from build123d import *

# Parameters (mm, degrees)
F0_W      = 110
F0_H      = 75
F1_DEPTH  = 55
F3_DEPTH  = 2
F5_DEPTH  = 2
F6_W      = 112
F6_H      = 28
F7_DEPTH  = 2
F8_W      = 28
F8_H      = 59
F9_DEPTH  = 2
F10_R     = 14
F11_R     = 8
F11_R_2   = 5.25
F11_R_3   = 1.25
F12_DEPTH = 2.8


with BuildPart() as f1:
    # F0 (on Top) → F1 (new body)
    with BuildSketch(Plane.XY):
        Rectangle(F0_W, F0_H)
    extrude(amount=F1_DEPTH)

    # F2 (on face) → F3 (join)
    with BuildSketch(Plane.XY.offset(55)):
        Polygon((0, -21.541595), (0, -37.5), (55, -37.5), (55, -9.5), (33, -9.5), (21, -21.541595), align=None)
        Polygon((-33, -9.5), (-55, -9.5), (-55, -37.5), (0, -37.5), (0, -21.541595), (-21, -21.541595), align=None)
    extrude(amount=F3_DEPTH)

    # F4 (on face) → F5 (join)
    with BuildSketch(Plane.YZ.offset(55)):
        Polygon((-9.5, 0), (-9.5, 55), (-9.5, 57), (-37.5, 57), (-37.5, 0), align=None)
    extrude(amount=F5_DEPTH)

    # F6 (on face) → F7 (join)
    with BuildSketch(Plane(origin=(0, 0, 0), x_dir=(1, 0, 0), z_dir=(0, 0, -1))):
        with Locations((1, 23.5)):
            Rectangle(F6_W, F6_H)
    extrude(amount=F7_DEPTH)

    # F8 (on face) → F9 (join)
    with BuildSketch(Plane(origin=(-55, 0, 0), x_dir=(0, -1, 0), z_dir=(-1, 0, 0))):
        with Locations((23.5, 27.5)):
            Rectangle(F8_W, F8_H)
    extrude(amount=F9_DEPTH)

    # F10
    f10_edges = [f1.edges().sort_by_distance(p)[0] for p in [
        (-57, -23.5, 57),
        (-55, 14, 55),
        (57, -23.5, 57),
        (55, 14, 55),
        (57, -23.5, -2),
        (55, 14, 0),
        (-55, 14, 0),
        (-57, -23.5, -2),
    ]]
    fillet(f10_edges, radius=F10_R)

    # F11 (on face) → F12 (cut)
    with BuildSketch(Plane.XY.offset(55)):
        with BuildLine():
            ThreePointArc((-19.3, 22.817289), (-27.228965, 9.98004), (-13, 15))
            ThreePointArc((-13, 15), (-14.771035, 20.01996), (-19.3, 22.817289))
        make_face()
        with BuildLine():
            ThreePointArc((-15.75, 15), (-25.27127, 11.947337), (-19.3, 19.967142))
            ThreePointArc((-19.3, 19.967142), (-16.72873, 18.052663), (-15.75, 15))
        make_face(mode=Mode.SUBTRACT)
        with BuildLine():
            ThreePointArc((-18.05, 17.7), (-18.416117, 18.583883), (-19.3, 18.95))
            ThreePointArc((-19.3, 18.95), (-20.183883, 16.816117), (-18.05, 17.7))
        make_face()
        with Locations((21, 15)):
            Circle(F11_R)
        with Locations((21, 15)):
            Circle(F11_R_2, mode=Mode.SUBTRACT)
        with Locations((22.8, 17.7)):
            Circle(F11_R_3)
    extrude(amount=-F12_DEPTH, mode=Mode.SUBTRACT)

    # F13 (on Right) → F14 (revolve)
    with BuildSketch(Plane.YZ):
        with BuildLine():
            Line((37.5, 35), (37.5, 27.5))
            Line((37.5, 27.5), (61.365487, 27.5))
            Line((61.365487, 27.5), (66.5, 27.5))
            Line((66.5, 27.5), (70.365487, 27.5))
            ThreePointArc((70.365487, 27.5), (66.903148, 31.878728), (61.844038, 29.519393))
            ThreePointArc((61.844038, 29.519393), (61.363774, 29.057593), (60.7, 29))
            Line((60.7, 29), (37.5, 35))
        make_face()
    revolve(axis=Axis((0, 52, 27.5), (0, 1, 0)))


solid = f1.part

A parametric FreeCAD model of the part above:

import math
import FreeCAD as App
import Part
import Sketcher


def edges_at(feature, points):
    """Names of the edges that pass closest to the given points."""
    edges = feature.Shape.Edges
    near = lambda p: min(range(len(edges)), key=lambda i: edges[i].distToShape(Part.Vertex(*p))[0])
    return sorted({f"Edge{near(p) + 1}" for p in points})

doc = App.newDocument("Part")
body = doc.addObject("PartDesign::Body", "Body")

# Sketch on XY plane
sketch1 = doc.addObject("Sketcher::SketchObject", "Sketch")
body.addObject(sketch1)
sketch1.AttachmentSupport = (doc.XY_Plane, [""])
sketch1.MapMode = "FlatFace"
sketch1.addGeometry([
    Part.LineSegment(App.Vector(-55, 37.5, 0), App.Vector(-55, -37.5, 0)),
    Part.LineSegment(App.Vector(-55, -37.5, 0), App.Vector(55, -37.5, 0)),
    Part.LineSegment(App.Vector(55, -37.5, 0), App.Vector(55, 37.5, 0)),
    Part.LineSegment(App.Vector(55, 37.5, 0), App.Vector(-55, 37.5, 0)),
], False)
sketch1.addConstraint([
    Sketcher.Constraint("Coincident", 0, 2, 1, 1),
    Sketcher.Constraint("Coincident", 1, 2, 2, 1),
    Sketcher.Constraint("Coincident", 2, 2, 3, 1),
    Sketcher.Constraint("Coincident", 3, 2, 0, 1),
    Sketcher.Constraint("Vertical", 0),
    Sketcher.Constraint("Horizontal", 1),
    Sketcher.Constraint("Vertical", 2),
    Sketcher.Constraint("Horizontal", 3),
    Sketcher.Constraint("Symmetric", 0, 2, 2, 2, -1, 1),
    Sketcher.Constraint("DistanceX", 1, 1, 1, 2, 110.0),
    Sketcher.Constraint("DistanceY", 0, 2, 0, 1, 75.0),
])
pad1 = doc.addObject("PartDesign::Pad", "Pad")
body.addObject(pad1)
pad1.Profile = sketch1
pad1.Length = 55

# Sketch on XY plane
sketch2 = doc.addObject("Sketcher::SketchObject", "Sketch001")
body.addObject(sketch2)
sketch2.AttachmentSupport = (doc.XY_Plane, [""])
sketch2.MapMode = "FlatFace"
sketch2.AttachmentOffset = App.Placement(App.Vector(0, 0, 55), App.Rotation())
sketch2.addGeometry([
    Part.LineSegment(App.Vector(55, -37.5, 0), App.Vector(55, -9.5, 0)),  # 0
    Part.LineSegment(App.Vector(55, -9.5, 0), App.Vector(33, -9.5, 0)),  # 1
    Part.LineSegment(App.Vector(33, -9.5, 0), App.Vector(21, -21.541595, 0)),  # 2
    Part.LineSegment(App.Vector(21, -21.541595, 0), App.Vector(-21, -21.541595, 0)),  # 3
    Part.LineSegment(App.Vector(-21, -21.541595, 0), App.Vector(-33, -9.5, 0)),  # 4
    Part.LineSegment(App.Vector(-33, -9.5, 0), App.Vector(-55, -9.5, 0)),  # 5
    Part.LineSegment(App.Vector(-55, -9.5, 0), App.Vector(-55, -37.5, 0)),  # 6
    Part.LineSegment(App.Vector(-55, -37.5, 0), App.Vector(55, -37.5, 0)),  # 7
], False)
sketch2.addConstraint([
    Sketcher.Constraint("Coincident", 0, 2, 1, 1),
    Sketcher.Constraint("Coincident", 1, 2, 2, 1),
    Sketcher.Constraint("Coincident", 2, 2, 3, 1),
    Sketcher.Constraint("Coincident", 3, 2, 4, 1),
    Sketcher.Constraint("Coincident", 4, 2, 5, 1),
    Sketcher.Constraint("Coincident", 5, 2, 6, 1),
    Sketcher.Constraint("Coincident", 6, 2, 7, 1),
    Sketcher.Constraint("Coincident", 7, 2, 0, 1),
    Sketcher.Constraint("Vertical", 0),
    Sketcher.Constraint("Horizontal", 1),
    Sketcher.Constraint("Horizontal", 3),
    Sketcher.Constraint("Horizontal", 5),
    Sketcher.Constraint("Vertical", 6),
    Sketcher.Constraint("Horizontal", 7),
    Sketcher.Constraint("Symmetric", 1, 2, 4, 2, -2),
    Sketcher.Constraint("Equal", 1, 5),
    Sketcher.Constraint("Equal", 2, 4),
    Sketcher.Constraint("DistanceX", 1, 2, 1, 1, 22.0),
    Sketcher.Constraint("DistanceX", 3, 2, 3, 1, 42.0),
    Sketcher.Constraint("DistanceX", 7, 1, 7, 2, 110.0),
    Sketcher.Constraint("DistanceY", 0, 1, 0, 2, 28.0),
    Sketcher.Constraint("Distance", 2, 17.0),
    Sketcher.Constraint("DistanceY", 0, 2, -1, 1, 9.5),
])
pad2 = doc.addObject("PartDesign::Pad", "Pad001")
body.addObject(pad2)
pad2.Profile = sketch2
pad2.Length = 2

# Sketch on YZ plane
sketch3 = doc.addObject("Sketcher::SketchObject", "Sketch002")
body.addObject(sketch3)
sketch3.AttachmentSupport = (doc.YZ_Plane, [""])
sketch3.MapMode = "FlatFace"
sketch3.AttachmentOffset = App.Placement(App.Vector(0, 0, 55), App.Rotation())
sketch3.addGeometry([
    Part.LineSegment(App.Vector(-9.5, 0, 0), App.Vector(-9.5, 57, 0)),
    Part.LineSegment(App.Vector(-9.5, 57, 0), App.Vector(-37.5, 57, 0)),
    Part.LineSegment(App.Vector(-37.5, 57, 0), App.Vector(-37.5, 0, 0)),
    Part.LineSegment(App.Vector(-37.5, 0, 0), App.Vector(-9.5, 0, 0)),
], False)
sketch3.addConstraint([
    Sketcher.Constraint("Coincident", 0, 2, 1, 1),
    Sketcher.Constraint("Coincident", 1, 2, 2, 1),
    Sketcher.Constraint("Coincident", 2, 2, 3, 1),
    Sketcher.Constraint("Coincident", 3, 2, 0, 1),
    Sketcher.Constraint("Vertical", 0),
    Sketcher.Constraint("Horizontal", 1),
    Sketcher.Constraint("Vertical", 2),
    Sketcher.Constraint("Horizontal", 3),
    Sketcher.Constraint("PointOnObject", 2, 2, -1),
    Sketcher.Constraint("DistanceX", 1, 2, 1, 1, 28.0),
    Sketcher.Constraint("DistanceY", 0, 1, 0, 2, 57.0),
    Sketcher.Constraint("DistanceX", 0, 2, -1, 1, 9.5),
])
pad3 = doc.addObject("PartDesign::Pad", "Pad002")
body.addObject(pad3)
pad3.Profile = sketch3
pad3.Length = 2

# Sketch on XY plane
sketch4 = doc.addObject("Sketcher::SketchObject", "Sketch003")
body.addObject(sketch4)
sketch4.AttachmentSupport = (doc.XY_Plane, [""])
sketch4.MapMode = "FlatFace"
sketch4.addGeometry([
    Part.LineSegment(App.Vector(-55, -37.5, 0), App.Vector(-55, -9.5, 0)),
    Part.LineSegment(App.Vector(-55, -9.5, 0), App.Vector(57, -9.5, 0)),
    Part.LineSegment(App.Vector(57, -9.5, 0), App.Vector(57, -37.5, 0)),
    Part.LineSegment(App.Vector(57, -37.5, 0), App.Vector(-55, -37.5, 0)),
], False)
sketch4.addConstraint([
    Sketcher.Constraint("Coincident", 0, 2, 1, 1),
    Sketcher.Constraint("Coincident", 1, 2, 2, 1),
    Sketcher.Constraint("Coincident", 2, 2, 3, 1),
    Sketcher.Constraint("Coincident", 3, 2, 0, 1),
    Sketcher.Constraint("Vertical", 0),
    Sketcher.Constraint("Horizontal", 1),
    Sketcher.Constraint("Vertical", 2),
    Sketcher.Constraint("Horizontal", 3),
    Sketcher.Constraint("DistanceX", 1, 1, 1, 2, 112.0),
    Sketcher.Constraint("DistanceY", 0, 1, 0, 2, 28.0),
    Sketcher.Constraint("DistanceX", 0, 2, -1, 1, 55.0),
    Sketcher.Constraint("DistanceY", 0, 2, -1, 1, 9.5),
])
pad4 = doc.addObject("PartDesign::Pad", "Pad003")
body.addObject(pad4)
pad4.Profile = sketch4
pad4.Length = 2
pad4.Reversed = True

# Sketch on YZ plane
sketch5 = doc.addObject("Sketcher::SketchObject", "Sketch004")
body.addObject(sketch5)
sketch5.AttachmentSupport = (doc.YZ_Plane, [""])
sketch5.MapMode = "FlatFace"
sketch5.AttachmentOffset = App.Placement(App.Vector(0, 0, -55), App.Rotation())
sketch5.addGeometry([
    Part.LineSegment(App.Vector(-9.5, 57, 0), App.Vector(-9.5, -2, 0)),
    Part.LineSegment(App.Vector(-9.5, -2, 0), App.Vector(-37.5, -2, 0)),
    Part.LineSegment(App.Vector(-37.5, -2, 0), App.Vector(-37.5, 57, 0)),
    Part.LineSegment(App.Vector(-37.5, 57, 0), App.Vector(-9.5, 57, 0)),
], False)
sketch5.addConstraint([
    Sketcher.Constraint("Coincident", 0, 2, 1, 1),
    Sketcher.Constraint("Coincident", 1, 2, 2, 1),
    Sketcher.Constraint("Coincident", 2, 2, 3, 1),
    Sketcher.Constraint("Coincident", 3, 2, 0, 1),
    Sketcher.Constraint("Vertical", 0),
    Sketcher.Constraint("Horizontal", 1),
    Sketcher.Constraint("Vertical", 2),
    Sketcher.Constraint("Horizontal", 3),
    Sketcher.Constraint("DistanceX", 1, 2, 1, 1, 28.0),
    Sketcher.Constraint("DistanceY", 0, 2, 0, 1, 59.0),
    Sketcher.Constraint("DistanceY", 0, 2, -1, 1, 2.0),
    Sketcher.Constraint("DistanceX", 0, 2, -1, 1, 9.5),
])
pad5 = doc.addObject("PartDesign::Pad", "Pad004")
body.addObject(pad5)
pad5.Profile = sketch5
pad5.Length = 2
pad5.Reversed = True
doc.recompute()

fillet = doc.addObject("PartDesign::Fillet", "Fillet")
body.addObject(fillet)
fillet.Base = (pad5, edges_at(pad5, [
    (-57, -23.5, 57),
    (-55, 14, 55),
    (57, -23.5, 57),
    (55, 14, 55),
    (57, -23.5, -2),
    (55, 14, 0),
    (-55, 14, 0),
    (-57, -23.5, -2),
]))
fillet.Radius = 14

# Sketch on XY plane
sketch6 = doc.addObject("Sketcher::SketchObject", "Sketch005")
body.addObject(sketch6)
sketch6.AttachmentSupport = (doc.XY_Plane, [""])
sketch6.MapMode = "FlatFace"
sketch6.AttachmentOffset = App.Placement(App.Vector(0, 0, 55), App.Rotation())
sketch6.addGeometry([
    Part.ArcOfCircle(Part.Circle(App.Vector(-21, 15, 0), App.Vector(0, 0, 1), 8), math.radians(77.7311), math.radians(359.999998)),  # 0
    Part.ArcOfCircle(Part.Circle(App.Vector(-21, 15, 0), App.Vector(0, 0, 1), 8), math.radians(-0.000002), math.radians(77.731099)),  # 1
    Part.ArcOfCircle(Part.Circle(App.Vector(-21, 15, 0), App.Vector(0, 0, 1), 5.25), math.radians(0.000004), math.radians(71.106531)),  # 2
    Part.ArcOfCircle(Part.Circle(App.Vector(-21, 15, 0), App.Vector(0, 0, 1), 5.25), math.radians(71.106535), math.radians(360)),  # 3
    Part.ArcOfCircle(Part.Circle(App.Vector(-19.300002, 17.699998, 0), App.Vector(0, 0, 1), 1.250002), math.radians(0.000075), math.radians(89.999925)),  # 4
    Part.ArcOfCircle(Part.Circle(App.Vector(-19.3, 17.7, 0), App.Vector(0, 0, 1), 1.25), math.radians(90.000013), math.radians(359.999987)),  # 5
    Part.Circle(App.Vector(21, 15, 0), App.Vector(0, 0, 1), 8),  # 6
    Part.Circle(App.Vector(21, 15, 0), App.Vector(0, 0, 1), 5.25),  # 7
    Part.Circle(App.Vector(22.8, 17.7, 0), App.Vector(0, 0, 1), 1.25),  # 8
], False)
sketch6.addConstraint([
    Sketcher.Constraint("Tangent", 0, 1, 1, 2),
    Sketcher.Constraint("Coincident", 1, 1, 0, 2),
    Sketcher.Constraint("Tangent", 2, 1, 3, 2),
    Sketcher.Constraint("Coincident", 3, 1, 2, 2),
    Sketcher.Constraint("Tangent", 4, 1, 5, 2),
    Sketcher.Constraint("Coincident", 5, 1, 4, 2),
    Sketcher.Constraint("Coincident", 2, 3, 0, 3),
    Sketcher.Constraint("Coincident", 7, 3, 6, 3),
    Sketcher.Constraint("Equal", 1, 6),
    Sketcher.Constraint("Equal", 3, 7),
    Sketcher.Constraint("Equal", 5, 8),
    Sketcher.Constraint("Symmetric", 0, 3, 6, 3, -2),
    Sketcher.Constraint("Horizontal", 5, 3, 8, 3),
    Sketcher.Constraint("Horizontal", 7, 3, 1, 1),
    Sketcher.Constraint("Horizontal", 1, 1, 2, 1),
    Sketcher.Constraint("Horizontal", 8, 3, 4, 1),
    Sketcher.Constraint("Vertical", 5, 3, 0, 1),
    Sketcher.Constraint("Vertical", 0, 1, 3, 1),
    Sketcher.Constraint("Vertical", 3, 1, 5, 1),
    Sketcher.Constraint("Diameter", 6, 16.0),
    Sketcher.Constraint("Diameter", 7, 10.5),
    Sketcher.Constraint("Diameter", 8, 2.5),
    Sketcher.Constraint("DistanceX", 0, 3, -1, 1, 21.0),
    Sketcher.Constraint("DistanceY", -1, 1, 0, 3, 15.0),
    Sketcher.Constraint("DistanceX", 4, 3, -1, 1, 19.300002),
    Sketcher.Constraint("DistanceY", -1, 1, 4, 3, 17.699998),
    Sketcher.Constraint("DistanceX", -1, 1, 8, 3, 22.8),
])
pocket1 = doc.addObject("PartDesign::Pocket", "Pocket")
body.addObject(pocket1)
pocket1.Profile = sketch6
pocket1.Length = 2.8

# Sketch on YZ plane
sketch7 = doc.addObject("Sketcher::SketchObject", "Sketch006")
body.addObject(sketch7)
sketch7.AttachmentSupport = (doc.YZ_Plane, [""])
sketch7.MapMode = "FlatFace"
sketch7.addGeometry([
    Part.LineSegment(App.Vector(37.5, 35, 0), App.Vector(37.5, 27.5, 0)),  # 0
    Part.LineSegment(App.Vector(37.5, 27.5, 0), App.Vector(70.365487, 27.5, 0)),  # 1
    Part.ArcOfCircle(Part.Circle(App.Vector(65.865487, 27.5, 0), App.Vector(0, 0, 1), 4.5), math.radians(0.000001), math.radians(153.336229)),  # 2
    Part.ArcOfCircle(Part.Circle(App.Vector(60.950384, 29.968145, 0), App.Vector(0, 0, 1), 0.999998), math.radians(-104.500231), math.radians(-26.663693)),  # 3
    Part.LineSegment(App.Vector(60.7, 29, 0), App.Vector(37.5, 35, 0)),  # 4
], False)
sketch7.addGeometry(Part.LineSegment(App.Vector(37.5, 27.5, 0), App.Vector(70.365487, 27.5, 0)), True)  # axis
sketch7.addConstraint([
    Sketcher.Constraint("Coincident", 0, 2, 1, 1),
    Sketcher.Constraint("Coincident", 1, 2, 2, 1),
    Sketcher.Constraint("Tangent", 2, 2, 3, 2),
    Sketcher.Constraint("Tangent", 3, 1, 4, 1),
    Sketcher.Constraint("Coincident", 4, 2, 0, 1),
    Sketcher.Constraint("Vertical", 0),
    Sketcher.Constraint("Horizontal", 1),
    Sketcher.Constraint("Horizontal", 5),
    Sketcher.Constraint("Coincident", 5, 1, 0, 2),
    Sketcher.Constraint("Horizontal", 2, 3, 0, 2),
    Sketcher.Constraint("Equal", 1, 5),
    Sketcher.Constraint("Radius", 3, 0.999998),
    Sketcher.Constraint("Radius", 2, 4.5),
    Sketcher.Constraint("DistanceY", 0, 2, 0, 1, 7.5),
    Sketcher.Constraint("DistanceY", -1, 1, 3, 1, 29.0),
    Sketcher.Constraint("DistanceY", -1, 1, 4, 2, 35.0),
    Sketcher.Constraint("DistanceX", -1, 1, 0, 2, 37.5),
    Sketcher.Constraint("DistanceX", -1, 1, 3, 1, 60.7),
])
revolution = doc.addObject("PartDesign::Revolution", "Revolution")
body.addObject(revolution)
revolution.Profile = sketch7
revolution.ReferenceAxis = (sketch7, ["Axis0"])
revolution.Angle = 360

doc.recompute()
